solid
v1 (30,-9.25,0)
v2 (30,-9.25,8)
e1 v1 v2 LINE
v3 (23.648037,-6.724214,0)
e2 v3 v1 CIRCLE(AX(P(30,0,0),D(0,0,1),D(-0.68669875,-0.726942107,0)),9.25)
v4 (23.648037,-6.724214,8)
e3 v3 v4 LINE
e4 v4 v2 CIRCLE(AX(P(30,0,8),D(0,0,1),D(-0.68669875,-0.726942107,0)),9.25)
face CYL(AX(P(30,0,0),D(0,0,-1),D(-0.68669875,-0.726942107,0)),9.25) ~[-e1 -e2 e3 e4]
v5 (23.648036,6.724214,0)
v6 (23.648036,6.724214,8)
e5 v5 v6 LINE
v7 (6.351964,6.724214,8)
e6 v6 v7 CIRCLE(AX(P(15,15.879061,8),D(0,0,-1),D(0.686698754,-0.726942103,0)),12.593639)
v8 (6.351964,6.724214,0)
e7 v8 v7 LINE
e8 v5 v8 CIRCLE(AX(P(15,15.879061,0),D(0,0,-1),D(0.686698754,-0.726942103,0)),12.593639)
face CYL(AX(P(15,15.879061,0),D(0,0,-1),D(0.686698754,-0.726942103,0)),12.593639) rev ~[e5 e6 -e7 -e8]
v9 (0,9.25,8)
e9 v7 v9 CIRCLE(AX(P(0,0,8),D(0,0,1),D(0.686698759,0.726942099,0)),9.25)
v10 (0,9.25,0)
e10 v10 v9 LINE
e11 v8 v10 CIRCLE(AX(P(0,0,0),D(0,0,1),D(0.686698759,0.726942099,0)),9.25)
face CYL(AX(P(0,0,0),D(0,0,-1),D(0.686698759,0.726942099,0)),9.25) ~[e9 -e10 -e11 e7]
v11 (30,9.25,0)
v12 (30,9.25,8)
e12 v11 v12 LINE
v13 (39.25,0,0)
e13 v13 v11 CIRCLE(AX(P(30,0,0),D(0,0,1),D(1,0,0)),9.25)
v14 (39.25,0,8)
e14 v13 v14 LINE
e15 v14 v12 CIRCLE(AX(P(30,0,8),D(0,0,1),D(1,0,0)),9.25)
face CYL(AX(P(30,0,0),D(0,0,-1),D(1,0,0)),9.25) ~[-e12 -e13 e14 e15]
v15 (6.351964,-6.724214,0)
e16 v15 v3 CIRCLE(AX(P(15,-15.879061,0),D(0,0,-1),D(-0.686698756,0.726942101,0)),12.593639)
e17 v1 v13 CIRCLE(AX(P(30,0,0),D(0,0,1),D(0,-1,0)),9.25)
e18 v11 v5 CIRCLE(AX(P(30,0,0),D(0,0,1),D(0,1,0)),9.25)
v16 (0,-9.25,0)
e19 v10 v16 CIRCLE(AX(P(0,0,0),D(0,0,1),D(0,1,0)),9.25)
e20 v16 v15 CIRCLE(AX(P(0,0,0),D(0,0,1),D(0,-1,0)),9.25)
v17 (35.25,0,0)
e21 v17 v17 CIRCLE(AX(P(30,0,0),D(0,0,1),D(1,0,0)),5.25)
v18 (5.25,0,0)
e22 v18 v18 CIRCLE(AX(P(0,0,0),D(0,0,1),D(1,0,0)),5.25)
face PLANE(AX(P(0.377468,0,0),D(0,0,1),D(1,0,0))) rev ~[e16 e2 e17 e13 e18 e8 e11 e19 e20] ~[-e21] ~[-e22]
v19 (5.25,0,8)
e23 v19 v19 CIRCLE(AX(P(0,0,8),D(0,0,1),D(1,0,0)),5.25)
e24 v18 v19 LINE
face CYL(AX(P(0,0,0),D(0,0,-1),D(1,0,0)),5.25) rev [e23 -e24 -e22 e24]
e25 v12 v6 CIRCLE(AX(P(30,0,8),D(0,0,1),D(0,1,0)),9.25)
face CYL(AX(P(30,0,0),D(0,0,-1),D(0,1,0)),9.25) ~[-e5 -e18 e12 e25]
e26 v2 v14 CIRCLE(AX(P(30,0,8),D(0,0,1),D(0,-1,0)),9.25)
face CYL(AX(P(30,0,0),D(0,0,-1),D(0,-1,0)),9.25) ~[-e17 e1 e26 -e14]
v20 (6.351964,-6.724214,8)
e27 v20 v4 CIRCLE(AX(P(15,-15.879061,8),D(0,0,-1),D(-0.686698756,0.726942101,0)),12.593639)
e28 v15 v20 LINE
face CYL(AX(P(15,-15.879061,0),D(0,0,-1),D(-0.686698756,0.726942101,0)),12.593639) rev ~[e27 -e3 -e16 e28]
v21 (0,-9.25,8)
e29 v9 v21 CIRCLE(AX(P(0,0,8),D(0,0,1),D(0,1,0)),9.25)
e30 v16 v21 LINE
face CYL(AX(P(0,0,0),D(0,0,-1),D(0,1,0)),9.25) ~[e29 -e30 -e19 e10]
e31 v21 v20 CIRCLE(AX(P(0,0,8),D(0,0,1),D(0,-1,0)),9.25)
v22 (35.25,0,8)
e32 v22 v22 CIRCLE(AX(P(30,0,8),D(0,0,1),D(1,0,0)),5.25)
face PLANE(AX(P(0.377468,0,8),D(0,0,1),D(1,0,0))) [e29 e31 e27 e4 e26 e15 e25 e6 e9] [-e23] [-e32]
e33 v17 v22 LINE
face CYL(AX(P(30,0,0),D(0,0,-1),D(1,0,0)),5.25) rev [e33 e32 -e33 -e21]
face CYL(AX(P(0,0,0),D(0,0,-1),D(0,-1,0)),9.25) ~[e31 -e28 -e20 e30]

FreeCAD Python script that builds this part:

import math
import FreeCAD as App
import Part
import Sketcher

V = App.Vector
Q = App.Units.Quantity

doc = App.newDocument("Part")
body = doc.addObject("PartDesign::Body", "Body")

# Sketch on XY plane
sketch1 = doc.addObject("Sketcher::SketchObject", "Sketch")
body.addObject(sketch1)
sketch1.AttachmentSupport = (doc.XY_Plane, [""])
sketch1.MapMode = "FlatFace"
sketch1.addGeometry([
    Part.ArcOfCircle(Part.Circle(V(0, 0, 0), V(0, 0, 1), 9), math.radians(47), math.radians(90)),  # 0
    Part.ArcOfCircle(Part.Circle(V(0, 0, 0), V(0, 0, 1), 9), math.radians(90), math.radians(270)),  # 1
    Part.ArcOfCircle(Part.Circle(V(0, 0, 0), V(0, 0, 1), 9), math.radians(-90), math.radians(-47)),  # 2
    Part.ArcOfCircle(Part.Circle(V(15, -16, 0), V(0, 0, 1), 13), math.radians(47), math.radians(133)),  # 3
    Part.ArcOfCircle(Part.Circle(V(30, 0, 0), V(0, 0, 1), 9), math.radians(-133), math.radians(-90)),  # 4
    Part.ArcOfCircle(Part.Circle(V(30, 0, 0), V(0, 0, 1), 9), math.radians(-90), math.radians(0)),  # 5
    Part.ArcOfCircle(Part.Circle(V(30, 0, 0), V(0, 0, 1), 9), math.radians(0), math.radians(90)),  # 6
    Part.ArcOfCircle(Part.Circle(V(30, 0, 0), V(0, 0, 1), 9), math.radians(90), math.radians(133)),  # 7
    Part.ArcOfCircle(Part.Circle(V(15, 16, 0), V(0, 0, 1), 13), math.radians(-133), math.radians(-47)),  # 8
    Part.Circle(V(0, 0, 0), V(0, 0, 1), 5),  # 9
    Part.Circle(V(30, 0, 0), V(0, 0, 1), 5),  # 10
], False)
sketch1.addConstraint([
    Sketcher.Constraint("Tangent", 0, 2, 1, 1),
    Sketcher.Constraint("Tangent", 1, 2, 2, 1),
    Sketcher.Constraint("Tangent", 2, 2, 3, 2),
    Sketcher.Constraint("Tangent", 3, 1, 4, 1),
    Sketcher.Constraint("Tangent", 4, 2, 5, 1),
    Sketcher.Constraint("Tangent", 5, 2, 6, 1),
    Sketcher.Constraint("Tangent", 6, 2, 7, 1),
    Sketcher.Constraint("Tangent", 7, 2, 8, 2),
    Sketcher.Constraint("Tangent", 8, 1, 0, 1),
    Sketcher.Constraint("Coincident", 0, 3, -1, 1),
    Sketcher.Constraint("Coincident", 9, 3, -1, 1),
    Sketcher.Constraint("Coincident", 6, 3, 4, 3),
    Sketcher.Constraint("Coincident", 10, 3, 4, 3),
    Sketcher.Constraint("Equal", 0, 1),
    Sketcher.Constraint("Equal", 1, 2),
    Sketcher.Constraint("Equal", 2, 4),
    Sketcher.Constraint("Equal", 6, 7),
    Sketcher.Constraint("Equal", 3, 8),
    Sketcher.Constraint("Equal", 9, 10),
    Sketcher.Constraint("Symmetric", 4, 2, 6, 2, -1),
    Sketcher.Constraint("PointOnObject", 0, 2, -2),
    Sketcher.Constraint("PointOnObject", 1, 2, -2),
    Sketcher.Constraint("PointOnObject", 5, 2, -1),
    Sketcher.Constraint("Vertical", 10, 3, 4, 2),
    Sketcher.Constraint("Diameter", 9, Q("10.5 mm")),
    Sketcher.Constraint("Radius", 0, Q("9.25 mm")),
    Sketcher.Constraint("DistanceX", -1, 1, 3, 3, Q("15 mm")),
    Sketcher.Constraint("Radius", 3, Q("12.593639 mm")),
])
pad1 = doc.addObject("PartDesign::Pad", "Pad")
body.addObject(pad1)
pad1.Profile = sketch1
pad1.Length = 8

doc.recompute()
